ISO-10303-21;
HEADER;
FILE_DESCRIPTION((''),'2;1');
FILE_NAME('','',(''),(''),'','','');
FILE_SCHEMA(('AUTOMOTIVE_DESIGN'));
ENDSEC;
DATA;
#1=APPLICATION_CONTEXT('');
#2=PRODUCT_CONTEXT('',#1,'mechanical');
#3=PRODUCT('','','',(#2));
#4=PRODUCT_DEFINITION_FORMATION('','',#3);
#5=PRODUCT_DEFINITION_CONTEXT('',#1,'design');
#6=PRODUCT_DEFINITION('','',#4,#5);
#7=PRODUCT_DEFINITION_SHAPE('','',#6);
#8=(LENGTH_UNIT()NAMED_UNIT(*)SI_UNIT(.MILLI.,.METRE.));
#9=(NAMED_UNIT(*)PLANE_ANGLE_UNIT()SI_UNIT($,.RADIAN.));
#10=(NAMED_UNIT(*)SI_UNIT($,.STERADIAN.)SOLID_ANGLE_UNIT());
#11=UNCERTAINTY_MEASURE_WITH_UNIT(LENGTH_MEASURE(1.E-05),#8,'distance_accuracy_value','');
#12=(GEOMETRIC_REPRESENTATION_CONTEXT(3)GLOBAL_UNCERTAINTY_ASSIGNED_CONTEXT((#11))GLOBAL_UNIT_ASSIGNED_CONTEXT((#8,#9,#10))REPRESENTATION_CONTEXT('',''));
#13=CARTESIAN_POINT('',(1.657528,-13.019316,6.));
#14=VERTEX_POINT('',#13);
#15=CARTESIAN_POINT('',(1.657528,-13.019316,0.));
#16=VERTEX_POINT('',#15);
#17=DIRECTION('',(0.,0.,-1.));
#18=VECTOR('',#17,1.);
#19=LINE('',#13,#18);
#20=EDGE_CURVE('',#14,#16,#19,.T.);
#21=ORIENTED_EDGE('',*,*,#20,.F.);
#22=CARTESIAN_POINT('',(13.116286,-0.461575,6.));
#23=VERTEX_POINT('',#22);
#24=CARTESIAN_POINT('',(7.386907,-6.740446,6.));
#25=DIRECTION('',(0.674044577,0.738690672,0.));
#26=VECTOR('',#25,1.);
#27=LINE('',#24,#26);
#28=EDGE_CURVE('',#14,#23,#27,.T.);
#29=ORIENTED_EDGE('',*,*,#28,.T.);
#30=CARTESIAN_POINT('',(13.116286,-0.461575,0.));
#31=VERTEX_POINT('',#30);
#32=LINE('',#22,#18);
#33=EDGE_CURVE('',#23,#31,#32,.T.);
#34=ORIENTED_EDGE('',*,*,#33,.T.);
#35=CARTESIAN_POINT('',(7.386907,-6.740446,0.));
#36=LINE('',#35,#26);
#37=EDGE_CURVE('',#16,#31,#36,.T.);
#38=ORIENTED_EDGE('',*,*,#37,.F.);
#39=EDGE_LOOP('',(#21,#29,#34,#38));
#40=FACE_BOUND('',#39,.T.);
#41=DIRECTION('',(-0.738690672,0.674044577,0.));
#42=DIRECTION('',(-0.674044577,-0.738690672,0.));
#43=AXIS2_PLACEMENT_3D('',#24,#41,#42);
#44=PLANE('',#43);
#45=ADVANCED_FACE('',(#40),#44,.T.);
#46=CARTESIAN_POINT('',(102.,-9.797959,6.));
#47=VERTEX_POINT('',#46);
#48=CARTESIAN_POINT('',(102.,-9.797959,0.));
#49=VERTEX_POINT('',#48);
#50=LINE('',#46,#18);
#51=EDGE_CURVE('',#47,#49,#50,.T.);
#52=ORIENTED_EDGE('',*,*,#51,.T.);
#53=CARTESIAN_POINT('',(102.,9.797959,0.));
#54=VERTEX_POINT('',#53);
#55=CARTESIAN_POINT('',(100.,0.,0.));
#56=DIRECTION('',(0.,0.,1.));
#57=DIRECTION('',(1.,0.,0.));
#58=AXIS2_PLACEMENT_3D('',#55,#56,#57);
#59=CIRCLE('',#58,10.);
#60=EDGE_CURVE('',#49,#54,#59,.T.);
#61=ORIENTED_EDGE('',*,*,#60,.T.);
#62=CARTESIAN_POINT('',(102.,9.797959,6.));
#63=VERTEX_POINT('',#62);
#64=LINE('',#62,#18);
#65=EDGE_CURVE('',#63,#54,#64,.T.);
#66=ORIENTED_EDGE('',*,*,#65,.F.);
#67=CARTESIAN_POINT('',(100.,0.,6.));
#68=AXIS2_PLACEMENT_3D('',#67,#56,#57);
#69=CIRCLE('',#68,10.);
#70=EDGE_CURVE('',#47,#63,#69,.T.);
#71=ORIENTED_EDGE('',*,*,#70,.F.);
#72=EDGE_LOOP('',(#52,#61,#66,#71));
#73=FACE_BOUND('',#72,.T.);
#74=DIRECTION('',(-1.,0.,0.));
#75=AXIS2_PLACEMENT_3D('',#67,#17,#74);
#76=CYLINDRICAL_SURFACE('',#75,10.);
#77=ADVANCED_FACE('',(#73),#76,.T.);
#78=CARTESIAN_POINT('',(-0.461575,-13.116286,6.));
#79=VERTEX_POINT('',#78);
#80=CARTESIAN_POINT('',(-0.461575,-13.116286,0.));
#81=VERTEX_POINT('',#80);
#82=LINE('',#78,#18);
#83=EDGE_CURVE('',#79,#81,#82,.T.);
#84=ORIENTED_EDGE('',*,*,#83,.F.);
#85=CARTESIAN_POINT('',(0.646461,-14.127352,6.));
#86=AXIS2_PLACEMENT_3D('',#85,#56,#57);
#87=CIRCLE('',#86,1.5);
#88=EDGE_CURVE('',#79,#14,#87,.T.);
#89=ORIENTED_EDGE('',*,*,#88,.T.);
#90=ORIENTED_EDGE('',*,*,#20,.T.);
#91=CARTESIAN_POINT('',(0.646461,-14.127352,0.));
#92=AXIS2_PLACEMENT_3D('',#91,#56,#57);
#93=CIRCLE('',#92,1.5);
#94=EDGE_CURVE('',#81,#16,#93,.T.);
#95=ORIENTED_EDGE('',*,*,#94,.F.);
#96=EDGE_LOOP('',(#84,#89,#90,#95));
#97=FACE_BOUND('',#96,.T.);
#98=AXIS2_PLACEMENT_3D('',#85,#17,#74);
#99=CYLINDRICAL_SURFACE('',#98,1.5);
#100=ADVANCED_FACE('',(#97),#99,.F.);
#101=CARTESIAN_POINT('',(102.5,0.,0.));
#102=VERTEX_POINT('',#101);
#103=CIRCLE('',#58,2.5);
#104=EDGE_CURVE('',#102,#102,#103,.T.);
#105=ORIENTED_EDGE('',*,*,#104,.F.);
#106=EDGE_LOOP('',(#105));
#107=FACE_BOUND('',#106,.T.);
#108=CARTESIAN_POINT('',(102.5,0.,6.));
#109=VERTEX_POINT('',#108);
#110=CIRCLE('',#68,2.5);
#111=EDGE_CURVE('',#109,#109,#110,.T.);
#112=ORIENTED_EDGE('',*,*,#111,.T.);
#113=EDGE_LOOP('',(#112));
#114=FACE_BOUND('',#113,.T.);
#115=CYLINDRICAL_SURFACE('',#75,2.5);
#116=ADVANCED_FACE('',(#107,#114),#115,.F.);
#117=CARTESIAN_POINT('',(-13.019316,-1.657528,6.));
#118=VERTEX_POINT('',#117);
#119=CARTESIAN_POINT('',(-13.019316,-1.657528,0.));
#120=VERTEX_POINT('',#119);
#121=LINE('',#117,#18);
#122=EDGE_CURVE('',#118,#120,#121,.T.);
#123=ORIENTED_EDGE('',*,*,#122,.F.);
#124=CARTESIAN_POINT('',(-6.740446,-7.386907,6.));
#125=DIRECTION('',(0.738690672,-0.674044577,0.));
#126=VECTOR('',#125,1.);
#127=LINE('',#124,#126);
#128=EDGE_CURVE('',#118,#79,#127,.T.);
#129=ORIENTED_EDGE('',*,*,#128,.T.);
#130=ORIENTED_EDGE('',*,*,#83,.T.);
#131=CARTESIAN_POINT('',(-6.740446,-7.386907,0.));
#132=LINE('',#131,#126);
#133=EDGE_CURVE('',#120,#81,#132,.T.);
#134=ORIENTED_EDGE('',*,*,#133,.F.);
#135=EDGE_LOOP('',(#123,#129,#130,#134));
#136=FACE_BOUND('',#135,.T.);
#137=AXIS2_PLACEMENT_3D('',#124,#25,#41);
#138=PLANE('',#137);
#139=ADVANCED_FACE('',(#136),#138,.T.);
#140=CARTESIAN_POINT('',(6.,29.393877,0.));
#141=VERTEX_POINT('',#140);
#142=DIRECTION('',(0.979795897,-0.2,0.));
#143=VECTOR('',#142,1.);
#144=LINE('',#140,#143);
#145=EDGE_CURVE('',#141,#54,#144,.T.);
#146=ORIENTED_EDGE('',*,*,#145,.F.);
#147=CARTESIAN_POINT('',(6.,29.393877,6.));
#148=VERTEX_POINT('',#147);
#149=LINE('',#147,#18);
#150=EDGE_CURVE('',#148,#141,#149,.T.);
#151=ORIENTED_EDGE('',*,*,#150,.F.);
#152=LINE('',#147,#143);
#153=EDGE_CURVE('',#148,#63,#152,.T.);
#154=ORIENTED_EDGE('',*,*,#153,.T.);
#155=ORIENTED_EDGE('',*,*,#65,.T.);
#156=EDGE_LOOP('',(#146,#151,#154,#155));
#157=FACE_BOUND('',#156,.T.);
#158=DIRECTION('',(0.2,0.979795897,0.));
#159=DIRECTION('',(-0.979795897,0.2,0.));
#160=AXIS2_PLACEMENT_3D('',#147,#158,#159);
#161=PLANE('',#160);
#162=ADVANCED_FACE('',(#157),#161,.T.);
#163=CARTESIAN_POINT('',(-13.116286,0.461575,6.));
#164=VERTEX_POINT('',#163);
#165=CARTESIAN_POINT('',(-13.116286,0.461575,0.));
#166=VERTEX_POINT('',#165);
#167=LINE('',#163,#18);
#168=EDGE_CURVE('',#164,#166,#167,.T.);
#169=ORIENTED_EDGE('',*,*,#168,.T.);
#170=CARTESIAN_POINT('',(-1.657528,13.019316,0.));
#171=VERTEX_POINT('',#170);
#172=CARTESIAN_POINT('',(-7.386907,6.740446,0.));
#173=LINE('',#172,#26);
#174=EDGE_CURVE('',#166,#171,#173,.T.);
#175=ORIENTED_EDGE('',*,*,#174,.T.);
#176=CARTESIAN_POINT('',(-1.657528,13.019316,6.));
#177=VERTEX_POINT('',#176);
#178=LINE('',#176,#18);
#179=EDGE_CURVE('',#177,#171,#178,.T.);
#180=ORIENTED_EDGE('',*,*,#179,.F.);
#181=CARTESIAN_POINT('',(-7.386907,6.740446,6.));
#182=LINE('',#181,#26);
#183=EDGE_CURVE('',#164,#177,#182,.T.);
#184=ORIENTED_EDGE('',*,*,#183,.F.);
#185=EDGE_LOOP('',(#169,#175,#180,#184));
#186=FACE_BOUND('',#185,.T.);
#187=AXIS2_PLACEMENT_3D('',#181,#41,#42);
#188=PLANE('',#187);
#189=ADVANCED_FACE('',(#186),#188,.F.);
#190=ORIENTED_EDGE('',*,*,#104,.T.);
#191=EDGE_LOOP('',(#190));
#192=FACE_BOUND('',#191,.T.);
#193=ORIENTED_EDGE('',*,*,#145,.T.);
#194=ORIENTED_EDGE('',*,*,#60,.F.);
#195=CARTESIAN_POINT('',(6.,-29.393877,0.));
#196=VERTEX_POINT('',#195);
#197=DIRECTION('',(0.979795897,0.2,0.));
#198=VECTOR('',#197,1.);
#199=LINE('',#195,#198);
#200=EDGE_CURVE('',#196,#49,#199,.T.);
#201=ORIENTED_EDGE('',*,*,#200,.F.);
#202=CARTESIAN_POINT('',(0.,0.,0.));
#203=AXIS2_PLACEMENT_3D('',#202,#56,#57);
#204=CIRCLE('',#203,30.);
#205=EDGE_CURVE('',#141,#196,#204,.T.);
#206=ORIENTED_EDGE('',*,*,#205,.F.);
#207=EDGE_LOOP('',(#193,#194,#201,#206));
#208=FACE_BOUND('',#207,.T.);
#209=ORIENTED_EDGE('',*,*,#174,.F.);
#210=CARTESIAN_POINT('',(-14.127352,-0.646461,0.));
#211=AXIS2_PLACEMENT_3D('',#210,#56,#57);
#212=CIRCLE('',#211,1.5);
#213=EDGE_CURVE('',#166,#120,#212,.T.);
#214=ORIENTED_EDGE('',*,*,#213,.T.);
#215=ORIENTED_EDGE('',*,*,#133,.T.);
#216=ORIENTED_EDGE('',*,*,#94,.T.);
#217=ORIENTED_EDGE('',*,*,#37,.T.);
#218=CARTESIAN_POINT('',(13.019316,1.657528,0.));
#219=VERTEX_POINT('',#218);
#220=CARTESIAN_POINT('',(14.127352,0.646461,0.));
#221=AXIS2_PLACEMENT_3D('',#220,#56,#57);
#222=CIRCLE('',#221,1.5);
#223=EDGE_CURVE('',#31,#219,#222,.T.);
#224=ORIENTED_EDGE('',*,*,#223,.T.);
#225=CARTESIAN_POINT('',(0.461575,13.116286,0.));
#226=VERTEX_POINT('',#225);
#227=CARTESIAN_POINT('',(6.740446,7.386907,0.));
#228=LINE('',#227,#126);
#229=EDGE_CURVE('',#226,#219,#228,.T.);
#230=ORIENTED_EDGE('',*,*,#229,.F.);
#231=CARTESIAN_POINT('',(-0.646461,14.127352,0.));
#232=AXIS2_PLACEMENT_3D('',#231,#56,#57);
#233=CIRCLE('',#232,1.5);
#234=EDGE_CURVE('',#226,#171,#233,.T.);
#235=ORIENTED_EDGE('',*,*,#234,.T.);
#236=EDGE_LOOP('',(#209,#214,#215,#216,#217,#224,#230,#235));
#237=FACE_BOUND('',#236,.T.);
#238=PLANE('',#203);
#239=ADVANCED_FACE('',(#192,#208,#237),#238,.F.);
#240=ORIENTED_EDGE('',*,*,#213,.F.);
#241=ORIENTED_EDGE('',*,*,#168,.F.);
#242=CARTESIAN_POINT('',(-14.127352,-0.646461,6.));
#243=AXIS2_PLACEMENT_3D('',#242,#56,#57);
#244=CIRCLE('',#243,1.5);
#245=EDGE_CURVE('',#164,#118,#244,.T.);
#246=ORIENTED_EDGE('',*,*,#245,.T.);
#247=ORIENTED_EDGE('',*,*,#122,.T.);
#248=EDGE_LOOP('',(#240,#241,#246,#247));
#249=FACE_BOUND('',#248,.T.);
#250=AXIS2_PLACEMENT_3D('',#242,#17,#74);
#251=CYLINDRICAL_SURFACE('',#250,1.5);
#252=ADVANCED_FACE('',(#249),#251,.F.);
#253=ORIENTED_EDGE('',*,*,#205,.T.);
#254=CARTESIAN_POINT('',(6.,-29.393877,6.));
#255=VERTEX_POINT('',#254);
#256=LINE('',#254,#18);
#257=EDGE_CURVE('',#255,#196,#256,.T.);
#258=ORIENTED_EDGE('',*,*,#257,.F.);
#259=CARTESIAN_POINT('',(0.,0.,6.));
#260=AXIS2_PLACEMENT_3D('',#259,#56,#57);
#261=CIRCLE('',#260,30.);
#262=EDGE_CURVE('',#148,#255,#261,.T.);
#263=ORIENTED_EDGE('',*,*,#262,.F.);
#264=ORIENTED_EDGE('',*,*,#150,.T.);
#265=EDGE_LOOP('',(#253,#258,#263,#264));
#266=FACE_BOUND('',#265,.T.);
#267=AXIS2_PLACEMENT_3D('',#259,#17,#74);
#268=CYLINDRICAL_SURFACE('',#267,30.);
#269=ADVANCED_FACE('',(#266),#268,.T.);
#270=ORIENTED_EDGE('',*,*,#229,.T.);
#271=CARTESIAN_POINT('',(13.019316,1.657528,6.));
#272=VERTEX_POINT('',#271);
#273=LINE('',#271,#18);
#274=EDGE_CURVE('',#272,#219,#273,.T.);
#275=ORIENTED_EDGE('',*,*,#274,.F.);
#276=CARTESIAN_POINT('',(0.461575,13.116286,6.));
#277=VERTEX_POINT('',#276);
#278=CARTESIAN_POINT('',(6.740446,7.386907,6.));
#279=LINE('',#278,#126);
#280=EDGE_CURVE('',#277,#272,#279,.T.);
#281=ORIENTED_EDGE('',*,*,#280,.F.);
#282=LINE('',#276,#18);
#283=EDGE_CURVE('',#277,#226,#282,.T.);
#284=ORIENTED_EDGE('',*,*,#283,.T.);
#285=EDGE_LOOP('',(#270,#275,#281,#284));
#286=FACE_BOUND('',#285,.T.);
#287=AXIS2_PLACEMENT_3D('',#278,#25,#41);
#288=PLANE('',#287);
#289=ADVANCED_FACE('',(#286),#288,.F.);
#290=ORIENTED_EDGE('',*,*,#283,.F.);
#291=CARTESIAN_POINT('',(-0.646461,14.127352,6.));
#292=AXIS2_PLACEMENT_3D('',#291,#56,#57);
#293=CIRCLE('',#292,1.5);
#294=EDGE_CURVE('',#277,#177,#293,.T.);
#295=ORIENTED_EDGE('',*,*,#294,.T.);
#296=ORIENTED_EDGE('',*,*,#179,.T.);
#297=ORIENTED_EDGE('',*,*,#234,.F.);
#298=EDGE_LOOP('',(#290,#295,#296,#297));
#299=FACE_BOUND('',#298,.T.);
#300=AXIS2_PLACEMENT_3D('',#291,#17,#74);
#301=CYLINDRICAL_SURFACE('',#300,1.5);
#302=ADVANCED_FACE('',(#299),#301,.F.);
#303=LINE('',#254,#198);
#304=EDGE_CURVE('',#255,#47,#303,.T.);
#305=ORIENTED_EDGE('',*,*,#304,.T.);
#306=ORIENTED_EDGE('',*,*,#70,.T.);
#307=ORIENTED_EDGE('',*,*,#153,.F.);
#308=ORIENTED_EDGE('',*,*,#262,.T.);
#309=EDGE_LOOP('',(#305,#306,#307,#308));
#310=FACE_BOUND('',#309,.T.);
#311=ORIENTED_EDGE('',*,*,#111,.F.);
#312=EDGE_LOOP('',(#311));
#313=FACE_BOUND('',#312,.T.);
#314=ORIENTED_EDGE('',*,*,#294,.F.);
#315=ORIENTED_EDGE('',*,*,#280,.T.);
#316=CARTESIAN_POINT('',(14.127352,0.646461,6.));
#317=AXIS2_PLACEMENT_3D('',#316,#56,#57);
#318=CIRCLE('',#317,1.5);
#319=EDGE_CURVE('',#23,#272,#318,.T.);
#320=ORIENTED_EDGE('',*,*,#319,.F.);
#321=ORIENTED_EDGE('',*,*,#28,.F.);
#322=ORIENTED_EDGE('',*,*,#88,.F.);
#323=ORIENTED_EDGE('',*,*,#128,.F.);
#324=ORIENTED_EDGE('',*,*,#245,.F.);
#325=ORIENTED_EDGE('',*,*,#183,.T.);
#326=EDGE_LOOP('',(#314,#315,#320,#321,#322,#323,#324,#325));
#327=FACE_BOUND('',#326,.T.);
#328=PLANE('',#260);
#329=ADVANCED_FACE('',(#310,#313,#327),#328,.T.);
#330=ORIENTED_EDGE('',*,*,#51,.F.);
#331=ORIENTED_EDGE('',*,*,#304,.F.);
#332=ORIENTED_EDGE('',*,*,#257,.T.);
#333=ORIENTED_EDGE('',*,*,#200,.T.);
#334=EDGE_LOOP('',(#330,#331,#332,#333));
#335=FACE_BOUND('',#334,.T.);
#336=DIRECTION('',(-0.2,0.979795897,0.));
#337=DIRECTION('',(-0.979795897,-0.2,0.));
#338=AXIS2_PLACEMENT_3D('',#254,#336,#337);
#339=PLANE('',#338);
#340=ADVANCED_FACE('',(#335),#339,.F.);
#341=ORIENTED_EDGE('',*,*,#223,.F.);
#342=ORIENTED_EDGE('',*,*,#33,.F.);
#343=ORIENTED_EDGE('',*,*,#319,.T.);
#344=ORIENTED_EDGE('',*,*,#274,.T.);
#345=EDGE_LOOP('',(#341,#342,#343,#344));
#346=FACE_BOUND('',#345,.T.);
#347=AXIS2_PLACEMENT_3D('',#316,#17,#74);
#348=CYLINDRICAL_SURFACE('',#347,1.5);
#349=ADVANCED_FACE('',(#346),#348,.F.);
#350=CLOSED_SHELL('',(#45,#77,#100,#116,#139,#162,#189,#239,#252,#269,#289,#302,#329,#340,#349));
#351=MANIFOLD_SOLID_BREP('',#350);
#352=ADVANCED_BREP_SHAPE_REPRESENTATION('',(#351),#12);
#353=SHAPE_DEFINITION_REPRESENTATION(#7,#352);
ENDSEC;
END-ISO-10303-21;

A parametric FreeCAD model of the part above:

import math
import FreeCAD as App
import Part
import Sketcher
from FreeCAD import Vector
Q = App.Units.Quantity

doc = App.newDocument("Part")
params = doc.addObject("Spreadsheet::Sheet", "Params")
for row, (alias, value) in enumerate([
    ("sketch1_diameter", "5 mm"),
    ("sketch1_radius", "30 mm"),
    ("sketch1_radius2", "10 mm"),
    ("sketch1_radius3", "1.5 mm"),
    ("sketch1_length", "17 mm"),
    ("pad1_length", "6 mm"),
], start=1):
    params.set(f"A{row}", alias)
    params.set(f"B{row}", "=" + value)
    params.setAlias(f"B{row}", alias)

body = doc.addObject("PartDesign::Body", "Body")

# Sketch on XY plane
sketch1 = body.newObject("Sketcher::SketchObject", "Sketch")
sketch1.AttachmentSupport = (doc.getObject("XY_Plane"), [""])
sketch1.MapMode = "FlatFace"
sketch1.addGeometry(Part.ArcOfCircle(Part.Circle(Vector(0, 0, 0), Vector(0, 0, 1), 30), math.radians(78), math.radians(282)), False)
sketch1.addGeometry(Part.LineSegment(Vector(6, -29.4, 0), Vector(102, -9.8, 0)), False)
sketch1.addGeometry(Part.ArcOfCircle(Part.Circle(Vector(100, 0, 0), Vector(0, 0, 1), 10), math.radians(-78), math.radians(78)), False)
sketch1.addGeometry(Part.LineSegment(Vector(102, 9.8, 0), Vector(6, 29.4, 0)), False)
sketch1.addGeometry(Part.LineSegment(Vector(-0.5, -13.1, 0), Vector(-13, -1.7, 0)), False)
sketch1.addGeometry(Part.ArcOfCircle(Part.Circle(Vector(-14.1, -0.6, 0), Vector(0, 0, 1), 1.5), math.radians(48), math.radians(318)), False)
sketch1.addGeometry(Part.LineSegment(Vector(-13.1, 0.5, 0), Vector(-1.7, 13, 0)), False)
sketch1.addGeometry(Part.ArcOfCircle(Part.Circle(Vector(-0.6, 14.1, 0), Vector(0, 0, 1), 1.5), math.radians(0), math.radians(228)), False)
sketch1.addGeometry(Part.ArcOfCircle(Part.Circle(Vector(-0.6, 14.1, 0), Vector(0, 0, 1), 1.5), math.radians(-42), math.radians(0)), False)
sketch1.addGeometry(Part.LineSegment(Vector(0.5, 13.1, 0), Vector(13, 1.7, 0)), False)
sketch1.addGeometry(Part.ArcOfCircle(Part.Circle(Vector(14.1, 0.6, 0), Vector(0, 0, 1), 1.5), math.radians(0), math.radians(138)), False)
sketch1.addGeometry(Part.ArcOfCircle(Part.Circle(Vector(14.1, 0.6, 0), Vector(0, 0, 1), 1.5), math.radians(-132), math.radians(0)), False)
sketch1.addGeometry(Part.LineSegment(Vector(13.1, -0.5, 0), Vector(1.7, -13, 0)), False)
sketch1.addGeometry(Part.ArcOfCircle(Part.Circle(Vector(0.6, -14.1, 0), Vector(0, 0, 1), 1.5), math.radians(0), math.radians(48)), False)
sketch1.addGeometry(Part.ArcOfCircle(Part.Circle(Vector(0.6, -14.1, 0), Vector(0, 0, 1), 1.5), math.radians(138), math.radians(360)), False)
sketch1.addGeometry(Part.Circle(Vector(100, 0, 0), Vector(0, 0, 1), 2.5), False)
sketch1.addConstraint(Sketcher.Constraint("Tangent", 0, 2, 1, 1))
sketch1.addConstraint(Sketcher.Constraint("Tangent", 1, 2, 2, 1))
sketch1.addConstraint(Sketcher.Constraint("Tangent", 2, 2, 3, 1))
sketch1.addConstraint(Sketcher.Constraint("Tangent", 3, 2, 0, 1))
sketch1.addConstraint(Sketcher.Constraint("Coincident", 4, 2, 5, 2))
sketch1.addConstraint(Sketcher.Constraint("Coincident", 5, 1, 6, 1))
sketch1.addConstraint(Sketcher.Constraint("Coincident", 6, 2, 7, 2))
sketch1.addConstraint(Sketcher.Constraint("Tangent", 7, 1, 8, 2))
sketch1.addConstraint(Sketcher.Constraint("Coincident", 8, 1, 9, 1))
sketch1.addConstraint(Sketcher.Constraint("Coincident", 9, 2, 10, 2))
sketch1.addConstraint(Sketcher.Constraint("Tangent", 10, 1, 11, 2))
sketch1.addConstraint(Sketcher.Constraint("Coincident", 11, 1, 12, 1))
sketch1.addConstraint(Sketcher.Constraint("Coincident", 12, 2, 13, 2))
sketch1.addConstraint(Sketcher.Constraint("Tangent", 13, 1, 14, 2))
sketch1.addConstraint(Sketcher.Constraint("Coincident", 14, 1, 4, 1))
sketch1.addConstraint(Sketcher.Constraint("Coincident", 0, 3, -1, 1))
sketch1.addConstraint(Sketcher.Constraint("Coincident", 15, 3, 2, 3))
sketch1.addConstraint(Sketcher.Constraint("Equal", 5, 7))
sketch1.addConstraint(Sketcher.Constraint("Equal", 7, 8))
sketch1.addConstraint(Sketcher.Constraint("Equal", 8, 10))
sketch1.addConstraint(Sketcher.Constraint("Equal", 10, 11))
sketch1.addConstraint(Sketcher.Constraint("Equal", 11, 13))
sketch1.addConstraint(Sketcher.Constraint("Equal", 13, 14))
sketch1.addConstraint(Sketcher.Constraint("Symmetric", 5, 3, 10, 3, -1, 1))
sketch1.addConstraint(Sketcher.Constraint("Symmetric", 7, 3, 13, 3, -1, 1))
sketch1.addConstraint(Sketcher.Constraint("PointOnObject", 2, 3, -1))
sketch1.addConstraint(Sketcher.Constraint("Perpendicular", 4, 6))
sketch1.addConstraint(Sketcher.Constraint("Perpendicular", 6, 9))
sketch1.addConstraint(Sketcher.Constraint("Perpendicular", 9, 12))
sketch1.addConstraint(Sketcher.Constraint("Horizontal", 8, 3, 7, 1))
sketch1.addConstraint(Sketcher.Constraint("Horizontal", 11, 3, 10, 1))
sketch1.addConstraint(Sketcher.Constraint("Horizontal", 14, 3, 13, 1))
sketch1.addConstraint(Sketcher.Constraint("Equal", 4, 6))
sketch1.addConstraint(Sketcher.Constraint("Diameter", 15, 5.0))
sketch1.addConstraint(Sketcher.Constraint("Radius", 0, 30.0))
sketch1.addConstraint(Sketcher.Constraint("Radius", 2, 10.0))
sketch1.addConstraint(Sketcher.Constraint("Radius", 5, 1.5))
sketch1.addConstraint(Sketcher.Constraint("Distance", 4, 17.0))
sketch1.addConstraint(Sketcher.Constraint("DistanceX", -1, 1, 2, 3, 100.0))
sketch1.addConstraint(Sketcher.Constraint("Angle", 4, Q("137.62 deg")))
sketch1.addConstraint(Sketcher.Constraint("DistanceY", 10, 3, 2, 2, 9.151498))
sketch1.addConstraint(Sketcher.Constraint("DistanceX", 7, 3, -1, 1, 0.646461))
sketch1.addConstraint(Sketcher.Constraint("DistanceY", 4, 2, 7, 3, 15.78488))
sketch1.addConstraint(Sketcher.Constraint("DistanceX", 5, 1, 4, 2, 0.096969))
sketch1.addConstraint(Sketcher.Constraint("DistanceY", 6, 2, 8, 1, 0.096969))
sketch1.addConstraint(Sketcher.Constraint("DistanceX", 9, 2, 11, 1, 0.096969))
sketch1.setExpression("Constraints[33]", "Params.sketch1_diameter")
sketch1.setExpression("Constraints[34]", "Params.sketch1_radius")
sketch1.setExpression("Constraints[35]", "Params.sketch1_radius2")
sketch1.setExpression("Constraints[36]", "Params.sketch1_radius3")
sketch1.setExpression("Constraints[37]", "Params.sketch1_length")
pad1 = body.newObject("PartDesign::Pad", "Pad")
pad1.Profile = sketch1
pad1.setExpression("Length", "Params.pad1_length")

doc.recompute()
